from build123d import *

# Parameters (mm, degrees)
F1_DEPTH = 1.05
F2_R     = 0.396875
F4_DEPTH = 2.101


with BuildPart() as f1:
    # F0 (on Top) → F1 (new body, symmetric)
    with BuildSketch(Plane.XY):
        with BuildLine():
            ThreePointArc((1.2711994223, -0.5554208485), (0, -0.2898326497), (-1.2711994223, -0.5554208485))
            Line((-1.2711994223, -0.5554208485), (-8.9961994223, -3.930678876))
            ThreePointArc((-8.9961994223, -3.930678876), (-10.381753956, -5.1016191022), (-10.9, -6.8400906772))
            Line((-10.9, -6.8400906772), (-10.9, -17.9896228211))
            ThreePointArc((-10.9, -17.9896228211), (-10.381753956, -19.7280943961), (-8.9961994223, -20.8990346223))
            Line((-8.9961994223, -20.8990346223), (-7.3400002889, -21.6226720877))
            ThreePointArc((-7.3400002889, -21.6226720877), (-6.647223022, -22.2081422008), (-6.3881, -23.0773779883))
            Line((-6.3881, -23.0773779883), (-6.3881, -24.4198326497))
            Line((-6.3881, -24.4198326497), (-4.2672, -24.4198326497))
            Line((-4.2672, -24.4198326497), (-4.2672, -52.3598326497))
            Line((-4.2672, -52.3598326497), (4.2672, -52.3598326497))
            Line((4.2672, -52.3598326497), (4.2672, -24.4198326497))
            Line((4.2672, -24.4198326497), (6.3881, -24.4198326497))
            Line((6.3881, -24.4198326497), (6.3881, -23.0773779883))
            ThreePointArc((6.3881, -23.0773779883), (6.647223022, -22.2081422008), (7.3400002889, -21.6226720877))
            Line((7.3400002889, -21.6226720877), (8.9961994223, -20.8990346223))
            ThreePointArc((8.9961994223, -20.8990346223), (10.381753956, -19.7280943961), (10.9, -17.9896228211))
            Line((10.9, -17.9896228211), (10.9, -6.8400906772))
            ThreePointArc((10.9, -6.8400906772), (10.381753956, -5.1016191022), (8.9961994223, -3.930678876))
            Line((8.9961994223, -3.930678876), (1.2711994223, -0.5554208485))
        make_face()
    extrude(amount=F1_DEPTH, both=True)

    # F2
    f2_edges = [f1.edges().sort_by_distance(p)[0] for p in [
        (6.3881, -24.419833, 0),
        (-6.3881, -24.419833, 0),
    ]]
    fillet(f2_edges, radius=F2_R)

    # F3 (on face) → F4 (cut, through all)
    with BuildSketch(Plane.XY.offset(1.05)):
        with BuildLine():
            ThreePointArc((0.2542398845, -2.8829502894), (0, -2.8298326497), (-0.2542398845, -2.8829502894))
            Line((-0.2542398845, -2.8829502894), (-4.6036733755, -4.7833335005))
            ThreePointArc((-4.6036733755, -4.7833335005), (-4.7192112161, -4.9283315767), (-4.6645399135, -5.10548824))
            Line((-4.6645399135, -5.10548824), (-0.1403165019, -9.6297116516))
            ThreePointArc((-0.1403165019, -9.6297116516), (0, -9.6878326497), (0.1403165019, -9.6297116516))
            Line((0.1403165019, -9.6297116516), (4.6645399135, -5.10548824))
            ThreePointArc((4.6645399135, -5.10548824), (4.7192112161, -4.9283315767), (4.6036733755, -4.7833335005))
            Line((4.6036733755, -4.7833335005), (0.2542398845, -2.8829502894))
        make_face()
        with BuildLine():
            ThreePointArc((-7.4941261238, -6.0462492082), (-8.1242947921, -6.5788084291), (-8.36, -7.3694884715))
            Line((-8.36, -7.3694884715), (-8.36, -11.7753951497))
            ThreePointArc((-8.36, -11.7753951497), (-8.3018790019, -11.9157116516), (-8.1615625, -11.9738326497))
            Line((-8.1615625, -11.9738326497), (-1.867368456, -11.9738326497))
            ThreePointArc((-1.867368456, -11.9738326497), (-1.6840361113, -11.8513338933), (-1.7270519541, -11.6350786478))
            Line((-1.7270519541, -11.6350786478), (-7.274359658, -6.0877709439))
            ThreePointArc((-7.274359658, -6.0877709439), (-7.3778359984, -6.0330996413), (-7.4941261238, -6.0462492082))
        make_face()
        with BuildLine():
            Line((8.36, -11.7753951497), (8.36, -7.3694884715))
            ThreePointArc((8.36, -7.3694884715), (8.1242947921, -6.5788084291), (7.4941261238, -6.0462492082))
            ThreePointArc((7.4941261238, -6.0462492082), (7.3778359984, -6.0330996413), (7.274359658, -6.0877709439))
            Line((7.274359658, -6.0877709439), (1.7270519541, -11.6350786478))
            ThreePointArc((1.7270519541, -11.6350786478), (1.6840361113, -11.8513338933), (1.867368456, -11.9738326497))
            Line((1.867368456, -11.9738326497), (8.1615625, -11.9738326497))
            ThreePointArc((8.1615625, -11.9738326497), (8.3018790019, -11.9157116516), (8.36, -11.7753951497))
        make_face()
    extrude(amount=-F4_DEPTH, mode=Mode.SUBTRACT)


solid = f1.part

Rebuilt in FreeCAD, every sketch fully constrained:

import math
import FreeCAD as App
import Part
import Sketcher

V = App.Vector
Q = App.Units.Quantity


def edges_at(feature, points):
    """Names of the edges that pass closest to the given points."""
    edges = feature.Shape.Edges
    near = lambda p: min(range(len(edges)), key=lambda i: edges[i].distToShape(Part.Vertex(*p))[0])
    return sorted({f"Edge{near(p) + 1}" for p in points})

doc = App.newDocument("Part")
params = doc.addObject("Spreadsheet::Sheet", "Params")
for row, (alias, value) in enumerate([
    ("sketch1_height", "1.1 in"),
    ("sketch1_radius", "0.125 in"),
    ("sketch1_radius2", "0.0625 in"),
    ("sketch1_width", "0.336 in"),
    ("pad1_length", "2.1 mm"),
    ("fillet_radius", "0.015625 in"),
    ("sketch2_radius", "0.025 in"),
], start=1):
    params.set(f"A{row}", alias)
    params.set(f"B{row}", "=" + value)
    params.setAlias(f"B{row}", alias)

body = doc.addObject("PartDesign::Body", "Body")

sketch1 = body.newObject("Sketcher::SketchObject", "Sketch")
sketch1.AttachmentSupport = (doc.getObject("XY_Plane"), [""])
sketch1.MapMode = "FlatFace"
sketch1.addGeometry([
    Part.ArcOfCircle(Part.Circle(V(0, -3.5, 0), V(0, 0, 1), 3.2), math.radians(66), math.radians(114)),
    Part.LineSegment(V(-1.3, -0.6, 0), V(-9, -3.9, 0)),
    Part.ArcOfCircle(Part.Circle(V(-7.7, -6.8, 0), V(0, 0, 1), 3.2), math.radians(114), math.radians(180)),
    Part.LineSegment(V(-10.9, -6.8, 0), V(-10.9, -18, 0)),
    Part.ArcOfCircle(Part.Circle(V(-7.7, -18, 0), V(0, 0, 1), 3.2), math.radians(180), math.radians(246)),
    Part.LineSegment(V(-9, -20.9, 0), V(-7.3, -21.6, 0)),
    Part.ArcOfCircle(Part.Circle(V(-8, -23.1, 0), V(0, 0, 1), 1.6), math.radians(0), math.radians(66)),
    Part.LineSegment(V(-6.4, -23.1, 0), V(-6.4, -24.4, 0)),
    Part.LineSegment(V(-6.4, -24.4, 0), V(-4.3, -24.4, 0)),
    Part.LineSegment(V(-4.3, -24.4, 0), V(-4.3, -52.4, 0)),
    Part.LineSegment(V(-4.3, -52.4, 0), V(4.3, -52.4, 0)),
    Part.LineSegment(V(4.3, -52.4, 0), V(4.3, -24.4, 0)),
    Part.LineSegment(V(4.3, -24.4, 0), V(6.4, -24.4, 0)),
    Part.LineSegment(V(6.4, -24.4, 0), V(6.4, -23.1, 0)),
    Part.ArcOfCircle(Part.Circle(V(8, -23.1, 0), V(0, 0, 1), 1.6), math.radians(114), math.radians(180)),
    Part.LineSegment(V(7.3, -21.6, 0), V(9, -20.9, 0)),
    Part.ArcOfCircle(Part.Circle(V(7.7, -18, 0), V(0, 0, 1), 3.2), math.radians(-66), math.radians(0)),
    Part.LineSegment(V(10.9, -18, 0), V(10.9, -6.8, 0)),
    Part.ArcOfCircle(Part.Circle(V(7.7, -6.8, 0), V(0, 0, 1), 3.2), math.radians(0), math.radians(66)),
    Part.LineSegment(V(9, -3.9, 0), V(1.3, -0.6, 0)),
], False)
sketch1.addConstraint([
    Sketcher.Constraint("Tangent", 0, 2, 1, 1),
    Sketcher.Constraint("Tangent", 1, 2, 2, 1),
    Sketcher.Constraint("Tangent", 2, 2, 3, 1),
    Sketcher.Constraint("Tangent", 3, 2, 4, 1),
    Sketcher.Constraint("Tangent", 4, 2, 5, 1),
    Sketcher.Constraint("Tangent", 5, 2, 6, 2),
    Sketcher.Constraint("Tangent", 6, 1, 7, 1),
    Sketcher.Constraint("Coincident", 7, 2, 8, 1),
    Sketcher.Constraint("Coincident", 8, 2, 9, 1),
    Sketcher.Constraint("Coincident", 9, 2, 10, 1),
    Sketcher.Constraint("Coincident", 10, 2, 11, 1),
    Sketcher.Constraint("Coincident", 11, 2, 12, 1),
    Sketcher.Constraint("Coincident", 12, 2, 13, 1),
    Sketcher.Constraint("Tangent", 13, 2, 14, 2),
    Sketcher.Constraint("Tangent", 14, 1, 15, 1),
    Sketcher.Constraint("Tangent", 15, 2, 16, 1),
    Sketcher.Constraint("Tangent", 16, 2, 17, 1),
    Sketcher.Constraint("Tangent", 17, 2, 18, 1),
    Sketcher.Constraint("Tangent", 18, 2, 19, 1),
    Sketcher.Constraint("Tangent", 19, 2, 0, 1),
    Sketcher.Constraint("Vertical", 3),
    Sketcher.Constraint("Vertical", 7),
    Sketcher.Constraint("Horizontal", 8),
    Sketcher.Constraint("Vertical", 9),
    Sketcher.Constraint("Horizontal", 10),
    Sketcher.Constraint("Vertical", 11),
    Sketcher.Constraint("Horizontal", 12),
    Sketcher.Constraint("Vertical", 13),
    Sketcher.Constraint("Vertical", 17),
    Sketcher.Constraint("Equal", 0, 2),
    Sketcher.Constraint("Equal", 2, 4),
    Sketcher.Constraint("Equal", 6, 14),
    Sketcher.Constraint("Equal", 4, 16),
    Sketcher.Constraint("Equal", 16, 18),
    Sketcher.Constraint("Symmetric", 6, 3, 14, 3, -2),
    Sketcher.Constraint("Symmetric", 4, 3, 16, 3, -2),
    Sketcher.Constraint("Symmetric", 8, 2, 11, 2, -2),
    Sketcher.Constraint("Symmetric", 1, 2, 18, 2, -2),
    Sketcher.Constraint("Parallel", 1, 15),
    Sketcher.Constraint("DistanceY", 9, 2, 9, 1, Q("1.1 in")),
    Sketcher.Constraint("Radius", 0, Q("0.125 in")),
    Sketcher.Constraint("Radius", 6, Q("0.0625 in")),
    Sketcher.Constraint("DistanceX", 10, 1, 10, 2, Q("0.336 in")),
    Sketcher.Constraint("DistanceX", 8, 1, 8, 2, Q("0.0835 in")),
    Sketcher.Constraint("DistanceX", 2, 3, -1, 1, 7.725),
    Sketcher.Constraint("DistanceX", 0, 2, -1, 1, 1.271199),
    Sketcher.Constraint("DistanceY", 4, 3, 0, 2, 17.434202),
    Sketcher.Constraint("DistanceY", 7, 2, 4, 2, 3.520798),
    Sketcher.Constraint("DistanceY", 2, 3, -1, 1, 6.840091),
])
sketch1.setExpression("Constraints[39]", "Params.sketch1_height")
sketch1.setExpression("Constraints[40]", "Params.sketch1_radius")
sketch1.setExpression("Constraints[41]", "Params.sketch1_radius2")
sketch1.setExpression("Constraints[42]", "Params.sketch1_width")
pad1 = body.newObject("PartDesign::Pad", "Pad")
pad1.Profile = sketch1
pad1.setExpression("Length", "Params.pad1_length")
pad1.Midplane = True
doc.recompute()

fillet = body.newObject("PartDesign::Fillet", "Fillet")
fillet.Base = (pad1, edges_at(pad1, [(6.388, -24.42, 0), (-6.388, -24.42, 0)]))
fillet.setExpression("Radius", "Params.fillet_radius")

sketch2 = body.newObject("Sketcher::SketchObject", "Sketch001")
sketch2.AttachmentSupport = (doc.getObject("XY_Plane"), [""])
sketch2.MapMode = "FlatFace"
sketch2.AttachmentOffset = App.Placement(V(0, 0, 1.05), App.Rotation())
sketch2.addGeometry([
    Part.ArcOfCircle(Part.Circle(V(0, -3.46, 0), V(0, 0, 1), 0.64), math.radians(66), math.radians(114)),
    Part.LineSegment(V(-0.25, -2.88, 0), V(-4.6, -4.78, 0)),
    Part.ArcOfCircle(Part.Circle(V(-4.52, -4.97, 0), V(0, 0, 1), 0.2), math.radians(114), math.radians(225)),
    Part.LineSegment(V(-4.66, -5.11, 0), V(-0.14, -9.63, 0)),
    Part.ArcOfCircle(Part.Circle(V(0, -9.49, 0), V(0, 0, 1), 0.2), math.radians(-135), math.radians(-45)),
    Part.LineSegment(V(0.14, -9.63, 0), V(4.66, -5.11, 0)),
    Part.ArcOfCircle(Part.Circle(V(4.52, -4.97, 0), V(0, 0, 1), 0.2), math.radians(-45), math.radians(66)),
    Part.LineSegment(V(4.6, -4.78, 0), V(0.25, -2.88, 0)),
    Part.ArcOfCircle(Part.Circle(V(-6.92, -7.37, 0), V(0, 0, 1), 1.44), math.radians(114), math.radians(180)),
    Part.LineSegment(V(-8.36, -7.37, 0), V(-8.36, -11.78, 0)),
    Part.ArcOfCircle(Part.Circle(V(-8.16, -11.78, 0), V(0, 0, 1), 0.2), math.radians(180), math.radians(270)),
    Part.LineSegment(V(-8.16, -11.97, 0), V(-1.87, -11.97, 0)),
    Part.ArcOfCircle(Part.Circle(V(-1.87, -11.78, 0), V(0, 0, 1), 0.2), math.radians(-90), math.radians(45)),
    Part.LineSegment(V(-1.73, -11.64, 0), V(-7.27, -6.09, 0)),
    Part.ArcOfCircle(Part.Circle(V(-7.41, -6.23, 0), V(0, 0, 1), 0.2), math.radians(45), math.radians(114)),
    Part.LineSegment(V(8.36, -11.78, 0), V(8.36, -7.37, 0)),
    Part.ArcOfCircle(Part.Circle(V(6.92, -7.37, 0), V(0, 0, 1), 1.44), math.radians(0), math.radians(66)),
    Part.ArcOfCircle(Part.Circle(V(7.41, -6.23, 0), V(0, 0, 1), 0.2), math.radians(66), math.radians(135)),
    Part.LineSegment(V(7.27, -6.09, 0), V(1.73, -11.64, 0)),
    Part.ArcOfCircle(Part.Circle(V(1.87, -11.78, 0), V(0, 0, 1), 0.2), math.radians(135), math.radians(270)),
    Part.LineSegment(V(1.87, -11.97, 0), V(8.16, -11.97, 0)),
    Part.ArcOfCircle(Part.Circle(V(8.16, -11.78, 0), V(0, 0, 1), 0.2), math.radians(-90), math.radians(0)),
], False)
sketch2.addConstraint([
    Sketcher.Constraint("Tangent", 0, 2, 1, 1),
    Sketcher.Constraint("Tangent", 1, 2, 2, 1),
    Sketcher.Constraint("Tangent", 2, 2, 3, 1),
    Sketcher.Constraint("Tangent", 3, 2, 4, 1),
    Sketcher.Constraint("Tangent", 4, 2, 5, 1),
    Sketcher.Constraint("Tangent", 5, 2, 6, 1),
    Sketcher.Constraint("Tangent", 6, 2, 7, 1),
    Sketcher.Constraint("Tangent", 7, 2, 0, 1),
    Sketcher.Constraint("Tangent", 8, 2, 9, 1),
    Sketcher.Constraint("Tangent", 9, 2, 10, 1),
    Sketcher.Constraint("Tangent", 10, 2, 11, 1),
    Sketcher.Constraint("Tangent", 11, 2, 12, 1),
    Sketcher.Constraint("Tangent", 12, 2, 13, 1),
    Sketcher.Constraint("Tangent", 13, 2, 14, 1),
    Sketcher.Constraint("Tangent", 14, 2, 8, 1),
    Sketcher.Constraint("Tangent", 15, 2, 16, 1),
    Sketcher.Constraint("Tangent", 16, 2, 17, 1),
    Sketcher.Constraint("Tangent", 17, 2, 18, 1),
    Sketcher.Constraint("Tangent", 18, 2, 19, 1),
    Sketcher.Constraint("Tangent", 19, 2, 20, 1),
    Sketcher.Constraint("Tangent", 20, 2, 21, 1),
    Sketcher.Constraint("Tangent", 21, 2, 15, 1),
    Sketcher.Constraint("Vertical", 9),
    Sketcher.Constraint("Horizontal", 11),
    Sketcher.Constraint("Vertical", 15),
    Sketcher.Constraint("Horizontal", 20),
    Sketcher.Constraint("Equal", 2, 4),
    Sketcher.Constraint("Equal", 4, 6),
    Sketcher.Constraint("Equal", 6, 10),
    Sketcher.Constraint("Equal", 10, 12),
    Sketcher.Constraint("Equal", 12, 14),
    Sketcher.Constraint("Equal", 8, 16),
    Sketcher.Constraint("Equal", 14, 17),
    Sketcher.Constraint("Equal", 17, 19),
    Sketcher.Constraint("Equal", 19, 21),
    Sketcher.Constraint("Symmetric", 2, 3, 6, 3, -2),
    Sketcher.Constraint("Symmetric", 8, 3, 16, 3, -2),
    Sketcher.Constraint("Symmetric", 12, 3, 19, 3, -2),
    Sketcher.Constraint("PointOnObject", 0, 3, -2),
    Sketcher.Constraint("PointOnObject", 4, 3, -2),
    Sketcher.Constraint("Perpendicular", 3, 5),
    Sketcher.Constraint("Perpendicular", 5, 13),
    Sketcher.Constraint("Perpendicular", 13, 18),
    Sketcher.Constraint("Radius", 0, Q("0.025 in")),
    Sketcher.Constraint("DistanceY", 10, 3, 4, 3, Q("0.09 in")),
    Sketcher.Constraint("Radius", 2, 0.198437),
    Sketcher.Constraint("Radius", 8, 1.444032),
    Sketcher.Constraint("DistanceX", 8, 2, -1, 1, 8.36),
    Sketcher.Constraint("DistanceX", 8, 3, 12, 3, 5.048599),
    Sketcher.Constraint("DistanceY", 8, 3, 14, 3, 1.141401),
    Sketcher.Constraint("DistanceY", 1, 2, 0, 3, 1.318501),
    Sketcher.Constraint("DistanceY", 14, 3, 2, 2, 1.122599),
    Sketcher.Constraint("DistanceY", 2, 3, -1, 1, 4.965172),
])
sketch2.setExpression("Constraints[43]", "Params.sketch2_radius")
pocket1 = body.newObject("PartDesign::Pocket", "Pocket")
pocket1.Profile = sketch2
pocket1.Type = "ThroughAll"

doc.recompute()
